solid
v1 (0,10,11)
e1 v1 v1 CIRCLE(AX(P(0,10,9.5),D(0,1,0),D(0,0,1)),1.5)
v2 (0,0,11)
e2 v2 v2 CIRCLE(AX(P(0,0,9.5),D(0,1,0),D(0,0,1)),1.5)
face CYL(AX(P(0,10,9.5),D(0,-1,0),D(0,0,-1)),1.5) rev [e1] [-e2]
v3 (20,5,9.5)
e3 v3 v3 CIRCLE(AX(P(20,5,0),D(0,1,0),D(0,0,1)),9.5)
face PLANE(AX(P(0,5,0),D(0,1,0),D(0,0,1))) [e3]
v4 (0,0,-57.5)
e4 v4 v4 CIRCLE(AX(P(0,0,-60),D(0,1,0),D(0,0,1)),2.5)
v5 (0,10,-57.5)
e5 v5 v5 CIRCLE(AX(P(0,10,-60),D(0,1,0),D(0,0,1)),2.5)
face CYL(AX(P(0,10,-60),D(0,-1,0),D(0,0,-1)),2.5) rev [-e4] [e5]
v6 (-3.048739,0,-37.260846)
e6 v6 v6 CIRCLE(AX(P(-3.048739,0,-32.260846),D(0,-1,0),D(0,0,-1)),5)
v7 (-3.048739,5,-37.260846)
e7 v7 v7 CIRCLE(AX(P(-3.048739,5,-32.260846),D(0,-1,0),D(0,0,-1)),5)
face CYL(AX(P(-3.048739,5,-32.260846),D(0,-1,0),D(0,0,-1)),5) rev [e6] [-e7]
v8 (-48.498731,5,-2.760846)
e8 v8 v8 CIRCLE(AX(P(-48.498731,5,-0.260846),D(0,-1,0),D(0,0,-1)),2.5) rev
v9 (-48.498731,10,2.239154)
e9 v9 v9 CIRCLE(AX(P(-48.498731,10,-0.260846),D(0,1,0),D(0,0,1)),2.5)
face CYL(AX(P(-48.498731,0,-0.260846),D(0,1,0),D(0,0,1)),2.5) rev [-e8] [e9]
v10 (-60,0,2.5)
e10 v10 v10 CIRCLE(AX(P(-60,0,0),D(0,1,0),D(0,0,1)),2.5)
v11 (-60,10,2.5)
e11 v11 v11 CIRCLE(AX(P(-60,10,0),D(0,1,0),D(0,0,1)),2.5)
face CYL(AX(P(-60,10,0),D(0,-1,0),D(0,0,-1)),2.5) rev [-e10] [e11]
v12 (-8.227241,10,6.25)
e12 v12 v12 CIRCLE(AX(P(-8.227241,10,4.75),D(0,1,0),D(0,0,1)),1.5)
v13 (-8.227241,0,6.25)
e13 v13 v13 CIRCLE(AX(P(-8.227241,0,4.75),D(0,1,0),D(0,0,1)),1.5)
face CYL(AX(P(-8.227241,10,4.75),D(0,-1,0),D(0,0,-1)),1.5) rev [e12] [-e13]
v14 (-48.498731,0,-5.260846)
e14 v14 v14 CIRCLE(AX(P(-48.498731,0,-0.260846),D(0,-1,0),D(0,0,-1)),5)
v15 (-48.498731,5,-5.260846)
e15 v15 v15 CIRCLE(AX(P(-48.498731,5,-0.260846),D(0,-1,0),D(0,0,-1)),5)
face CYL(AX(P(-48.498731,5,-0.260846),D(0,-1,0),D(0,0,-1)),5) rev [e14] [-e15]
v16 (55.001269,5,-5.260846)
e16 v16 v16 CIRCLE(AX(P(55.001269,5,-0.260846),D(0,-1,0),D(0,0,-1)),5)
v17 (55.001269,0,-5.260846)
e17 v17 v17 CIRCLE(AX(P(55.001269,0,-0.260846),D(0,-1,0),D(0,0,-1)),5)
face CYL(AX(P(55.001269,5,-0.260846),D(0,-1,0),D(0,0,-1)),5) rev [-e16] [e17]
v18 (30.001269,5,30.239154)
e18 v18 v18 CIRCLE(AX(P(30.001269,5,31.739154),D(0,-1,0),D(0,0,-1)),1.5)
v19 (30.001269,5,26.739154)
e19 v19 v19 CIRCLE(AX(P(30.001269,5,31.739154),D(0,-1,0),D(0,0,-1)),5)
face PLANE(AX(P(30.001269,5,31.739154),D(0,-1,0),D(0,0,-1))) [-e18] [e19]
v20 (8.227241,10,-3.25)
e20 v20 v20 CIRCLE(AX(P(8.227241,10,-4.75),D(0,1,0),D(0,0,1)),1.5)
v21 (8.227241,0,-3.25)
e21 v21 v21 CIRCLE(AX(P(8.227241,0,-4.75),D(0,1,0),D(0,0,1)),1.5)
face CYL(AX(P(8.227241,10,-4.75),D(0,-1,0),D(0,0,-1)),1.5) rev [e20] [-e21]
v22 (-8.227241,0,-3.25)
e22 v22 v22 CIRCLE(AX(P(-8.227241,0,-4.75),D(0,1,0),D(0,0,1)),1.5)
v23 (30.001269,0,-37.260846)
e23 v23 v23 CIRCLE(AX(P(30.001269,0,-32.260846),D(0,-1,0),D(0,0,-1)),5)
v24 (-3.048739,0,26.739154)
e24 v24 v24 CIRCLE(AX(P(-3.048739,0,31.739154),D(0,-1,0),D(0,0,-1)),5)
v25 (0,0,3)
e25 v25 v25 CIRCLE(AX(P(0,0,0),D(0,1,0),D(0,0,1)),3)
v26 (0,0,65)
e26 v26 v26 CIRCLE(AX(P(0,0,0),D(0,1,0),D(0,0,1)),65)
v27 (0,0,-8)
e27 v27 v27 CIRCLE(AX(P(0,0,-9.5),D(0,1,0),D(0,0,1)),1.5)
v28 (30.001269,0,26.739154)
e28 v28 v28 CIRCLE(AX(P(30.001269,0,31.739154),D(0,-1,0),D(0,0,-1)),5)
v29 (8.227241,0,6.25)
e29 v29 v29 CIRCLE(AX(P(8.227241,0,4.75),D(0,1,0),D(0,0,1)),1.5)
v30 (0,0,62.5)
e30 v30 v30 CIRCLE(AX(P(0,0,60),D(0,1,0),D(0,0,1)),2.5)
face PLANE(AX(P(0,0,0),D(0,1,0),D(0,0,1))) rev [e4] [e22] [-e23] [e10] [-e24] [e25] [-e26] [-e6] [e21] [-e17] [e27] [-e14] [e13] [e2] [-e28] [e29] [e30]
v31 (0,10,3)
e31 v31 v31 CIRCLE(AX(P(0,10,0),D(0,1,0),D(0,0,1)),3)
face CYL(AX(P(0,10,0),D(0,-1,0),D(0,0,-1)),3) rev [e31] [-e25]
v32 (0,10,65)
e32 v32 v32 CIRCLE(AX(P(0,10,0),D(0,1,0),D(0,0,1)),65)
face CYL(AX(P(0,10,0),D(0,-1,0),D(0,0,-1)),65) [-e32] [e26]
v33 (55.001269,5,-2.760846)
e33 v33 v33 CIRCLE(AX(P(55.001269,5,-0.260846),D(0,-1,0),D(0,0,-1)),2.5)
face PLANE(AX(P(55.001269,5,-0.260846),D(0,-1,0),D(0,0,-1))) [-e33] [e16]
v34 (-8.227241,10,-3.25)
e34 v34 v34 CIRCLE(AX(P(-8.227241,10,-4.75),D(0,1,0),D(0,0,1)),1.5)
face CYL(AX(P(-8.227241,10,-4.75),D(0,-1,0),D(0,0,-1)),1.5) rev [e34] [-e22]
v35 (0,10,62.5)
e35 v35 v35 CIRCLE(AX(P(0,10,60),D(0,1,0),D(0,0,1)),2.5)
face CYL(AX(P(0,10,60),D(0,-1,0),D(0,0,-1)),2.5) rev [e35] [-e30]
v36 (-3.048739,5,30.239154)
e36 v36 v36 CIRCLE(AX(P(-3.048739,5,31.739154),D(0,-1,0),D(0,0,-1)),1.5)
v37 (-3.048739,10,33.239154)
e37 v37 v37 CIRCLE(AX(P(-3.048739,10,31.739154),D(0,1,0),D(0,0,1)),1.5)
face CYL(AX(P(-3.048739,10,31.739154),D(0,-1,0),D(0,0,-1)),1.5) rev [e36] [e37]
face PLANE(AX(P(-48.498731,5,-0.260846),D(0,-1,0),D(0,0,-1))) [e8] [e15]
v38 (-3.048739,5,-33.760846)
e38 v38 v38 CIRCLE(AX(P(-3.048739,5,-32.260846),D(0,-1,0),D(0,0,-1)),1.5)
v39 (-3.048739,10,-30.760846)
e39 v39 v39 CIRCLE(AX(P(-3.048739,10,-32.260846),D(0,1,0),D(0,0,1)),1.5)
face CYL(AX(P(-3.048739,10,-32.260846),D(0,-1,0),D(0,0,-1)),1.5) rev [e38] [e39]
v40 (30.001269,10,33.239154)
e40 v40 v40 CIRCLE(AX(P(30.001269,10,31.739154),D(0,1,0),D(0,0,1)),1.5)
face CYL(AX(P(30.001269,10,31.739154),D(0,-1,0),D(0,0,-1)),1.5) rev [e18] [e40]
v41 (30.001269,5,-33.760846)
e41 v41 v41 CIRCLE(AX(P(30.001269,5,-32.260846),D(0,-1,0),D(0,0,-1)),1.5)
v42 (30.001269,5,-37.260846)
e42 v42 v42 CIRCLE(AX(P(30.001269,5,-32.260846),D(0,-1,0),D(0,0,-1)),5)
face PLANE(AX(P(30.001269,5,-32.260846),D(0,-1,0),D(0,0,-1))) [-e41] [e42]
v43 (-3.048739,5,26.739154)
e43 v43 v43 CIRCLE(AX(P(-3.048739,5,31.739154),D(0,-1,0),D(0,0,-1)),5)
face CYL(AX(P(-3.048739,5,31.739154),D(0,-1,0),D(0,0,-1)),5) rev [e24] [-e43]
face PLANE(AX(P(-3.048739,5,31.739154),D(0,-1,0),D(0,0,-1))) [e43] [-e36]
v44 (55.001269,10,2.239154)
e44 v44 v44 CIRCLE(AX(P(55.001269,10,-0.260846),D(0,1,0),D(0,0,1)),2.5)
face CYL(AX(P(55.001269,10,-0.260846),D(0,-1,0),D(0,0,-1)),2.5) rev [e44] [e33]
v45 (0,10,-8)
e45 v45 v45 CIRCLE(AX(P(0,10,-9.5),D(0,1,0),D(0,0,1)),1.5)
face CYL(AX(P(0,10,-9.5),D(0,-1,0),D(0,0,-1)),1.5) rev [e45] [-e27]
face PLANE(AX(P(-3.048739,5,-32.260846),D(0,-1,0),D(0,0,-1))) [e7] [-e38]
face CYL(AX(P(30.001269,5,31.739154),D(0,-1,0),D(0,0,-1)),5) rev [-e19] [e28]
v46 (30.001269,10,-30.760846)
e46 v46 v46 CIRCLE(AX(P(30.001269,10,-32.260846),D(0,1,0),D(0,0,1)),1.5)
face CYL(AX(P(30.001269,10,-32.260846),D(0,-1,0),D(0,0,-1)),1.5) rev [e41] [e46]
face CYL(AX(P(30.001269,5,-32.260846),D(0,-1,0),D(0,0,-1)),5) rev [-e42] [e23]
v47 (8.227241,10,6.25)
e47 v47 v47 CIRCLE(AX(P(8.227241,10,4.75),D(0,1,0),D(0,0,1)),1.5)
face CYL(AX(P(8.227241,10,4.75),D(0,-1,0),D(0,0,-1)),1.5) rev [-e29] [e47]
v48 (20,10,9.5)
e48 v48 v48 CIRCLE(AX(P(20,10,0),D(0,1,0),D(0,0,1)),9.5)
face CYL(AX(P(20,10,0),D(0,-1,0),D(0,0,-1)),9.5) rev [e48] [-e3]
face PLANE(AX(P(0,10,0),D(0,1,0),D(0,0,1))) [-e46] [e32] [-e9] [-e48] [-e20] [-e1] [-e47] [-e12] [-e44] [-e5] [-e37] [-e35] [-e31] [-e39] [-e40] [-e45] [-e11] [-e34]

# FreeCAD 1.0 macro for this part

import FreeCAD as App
import Part
import Sketcher
from FreeCAD import Vector
Q = App.Units.Quantity

doc = App.newDocument("Part")
body = doc.addObject("PartDesign::Body", "Body")

# Sketch on XZ plane
sketch1 = body.newObject("Sketcher::SketchObject", "Sketch")
sketch1.AttachmentSupport = (doc.getObject("XZ_Plane"), [""])
sketch1.MapMode = "FlatFace"
sketch1.addGeometry(Part.Circle(Vector(0, 0, 0), Vector(0, 0, 1), 65), False)
sketch1.addGeometry(Part.Circle(Vector(-3.048739, -32.260846, 0), Vector(0, 0, 1), 1.5), False)
sketch1.addGeometry(Part.Circle(Vector(-8.227241, -4.75, 0), Vector(0, 0, 1), 1.5), False)
sketch1.addGeometry(Part.Circle(Vector(-60, 0, 0), Vector(0, 0, 1), 2.5), False)
sketch1.addGeometry(Part.Circle(Vector(-8.227241, 4.75, 0), Vector(0, 0, 1), 1.5), False)
sketch1.addGeometry(Part.Circle(Vector(-3.048739, 31.739154, 0), Vector(0, 0, 1), 1.5), False)
sketch1.addGeometry(Part.Circle(Vector(0, -60, 0), Vector(0, 0, 1), 2.5), False)
sketch1.addGeometry(Part.Circle(Vector(0, -9.5, 0), Vector(0, 0, 1), 1.5), False)
sketch1.addGeometry(Part.Circle(Vector(8.227241, -4.75, 0), Vector(0, 0, 1), 1.5), False)
sketch1.addGeometry(Part.Circle(Vector(20, 0, 0), Vector(0, 0, 1), 9.5), False)
sketch1.addGeometry(Part.Circle(Vector(30.001269, -32.260846, 0), Vector(0, 0, 1), 1.5), False)
sketch1.addGeometry(Part.Circle(Vector(55.001269, -0.260846, 0), Vector(0, 0, 1), 2.5), False)
sketch1.addGeometry(Part.Circle(Vector(0, 0, 0), Vector(0, 0, 1), 3), False)
sketch1.addGeometry(Part.Circle(Vector(0, 9.5, 0), Vector(0, 0, 1), 1.5), False)
sketch1.addGeometry(Part.Circle(Vector(8.227241, 4.75, 0), Vector(0, 0, 1), 1.5), False)
sketch1.addGeometry(Part.Circle(Vector(0, 60, 0), Vector(0, 0, 1), 2.5), False)
sketch1.addGeometry(Part.Circle(Vector(30.001269, 31.739154, 0), Vector(0, 0, 1), 1.5), False)
sketch1.addConstraint(Sketcher.Constraint("Coincident", 0, 3, -1, 1))
sketch1.addConstraint(Sketcher.Constraint("Coincident", 12, 3, -1, 1))
sketch1.addConstraint(Sketcher.Constraint("Equal", 1, 2))
sketch1.addConstraint(Sketcher.Constraint("Equal", 2, 4))
sketch1.addConstraint(Sketcher.Constraint("Equal", 4, 5))
sketch1.addConstraint(Sketcher.Constraint("Equal", 3, 6))
sketch1.addConstraint(Sketcher.Constraint("Equal", 5, 7))
sketch1.addConstraint(Sketcher.Constraint("Equal", 7, 8))
sketch1.addConstraint(Sketcher.Constraint("Equal", 8, 10))
sketch1.addConstraint(Sketcher.Constraint("Equal", 6, 11))
sketch1.addConstraint(Sketcher.Constraint("Equal", 10, 13))
sketch1.addConstraint(Sketcher.Constraint("Equal", 13, 14))
sketch1.addConstraint(Sketcher.Constraint("Equal", 11, 15))
sketch1.addConstraint(Sketcher.Constraint("Equal", 14, 16))
sketch1.addConstraint(Sketcher.Constraint("Symmetric", 4, 3, 8, 3, -1, 1))
sketch1.addConstraint(Sketcher.Constraint("Symmetric", 7, 3, 13, 3, -1, 1))
sketch1.addConstraint(Sketcher.Constraint("Symmetric", 2, 3, 14, 3, -1, 1))
sketch1.addConstraint(Sketcher.Constraint("Symmetric", 6, 3, 15, 3, -1, 1))
sketch1.addConstraint(Sketcher.Constraint("Symmetric", 2, 3, 8, 3, -2))
sketch1.addConstraint(Sketcher.Constraint("PointOnObject", 3, 3, -1))
sketch1.addConstraint(Sketcher.Constraint("PointOnObject", 6, 3, -2))
sketch1.addConstraint(Sketcher.Constraint("PointOnObject", 7, 3, -2))
sketch1.addConstraint(Sketcher.Constraint("PointOnObject", 9, 3, -1))
sketch1.addConstraint(Sketcher.Constraint("Horizontal", 1, 3, 10, 3))
sketch1.addConstraint(Sketcher.Constraint("Horizontal", 5, 3, 16, 3))
sketch1.addConstraint(Sketcher.Constraint("Vertical", 1, 3, 5, 3))
sketch1.addConstraint(Sketcher.Constraint("Vertical", 10, 3, 16, 3))
sketch1.addConstraint(Sketcher.Constraint("Diameter", 0, Q("130 mm")))
sketch1.addConstraint(Sketcher.Constraint("Diameter", 1, Q("3 mm")))
sketch1.addConstraint(Sketcher.Constraint("Diameter", 3, Q("5 mm")))
sketch1.addConstraint(Sketcher.Constraint("Diameter", 9, Q("19 mm")))
sketch1.addConstraint(Sketcher.Constraint("Diameter", 12, Q("6 mm")))
sketch1.addConstraint(Sketcher.Constraint("DistanceX", 3, 3, -1, 1, Q("60 mm")))
sketch1.addConstraint(Sketcher.Constraint("DistanceY", 6, 3, -1, 1, Q("60 mm")))
sketch1.addConstraint(Sketcher.Constraint("DistanceX", -1, 1, 9, 3, Q("20 mm")))
sketch1.addConstraint(Sketcher.Constraint("DistanceY", 1, 3, 5, 3, Q("64 mm")))
sketch1.addConstraint(Sketcher.Constraint("DistanceX", 10, 3, 11, 3, Q("25 mm")))
sketch1.addConstraint(Sketcher.Constraint("DistanceY", 10, 3, 11, 3, Q("32 mm")))
sketch1.addConstraint(Sketcher.Constraint("DistanceY", 7, 3, -1, 1, Q("9.5 mm")))
sketch1.addConstraint(Sketcher.Constraint("DistanceY", 2, 3, 4, 3, Q("9.5 mm")))
sketch1.addConstraint(Sketcher.Constraint("DistanceX", 1, 3, -1, 1, Q("3.048739 mm")))
sketch1.addConstraint(Sketcher.Constraint("DistanceX", 2, 3, -1, 1, Q("8.227241 mm")))
sketch1.addConstraint(Sketcher.Constraint("DistanceX", -1, 1, 10, 3, Q("30.001269 mm")))
sketch1.addConstraint(Sketcher.Constraint("DistanceY", 1, 3, -1, 1, Q("32.260846 mm")))
pad1 = body.newObject("PartDesign::Pad", "Pad")
pad1.Profile = sketch1
pad1.Length = 10
pad1.Reversed = True

# Sketch on XZ plane
sketch2 = body.newObject("Sketcher::SketchObject", "Sketch001")
sketch2.AttachmentSupport = (doc.getObject("XZ_Plane"), [""])
sketch2.MapMode = "FlatFace"
sketch2.addGeometry(Part.Circle(Vector(20, 0, 0), Vector(0, 0, 1), 9.5), False)
sketch2.addConstraint(Sketcher.Constraint("PointOnObject", 0, 3, -1))
sketch2.addConstraint(Sketcher.Constraint("Diameter", 0, Q("19 mm")))
sketch2.addConstraint(Sketcher.Constraint("DistanceX", -1, 1, 0, 3, Q("20 mm")))
pad2 = body.newObject("PartDesign::Pad", "Pad001")
pad2.Profile = sketch2
pad2.Length = 5
pad2.Reversed = True

# Sketch on XZ plane
sketch3 = body.newObject("Sketcher::SketchObject", "Sketch002")
sketch3.AttachmentSupport = (doc.getObject("XZ_Plane"), [""])
sketch3.MapMode = "FlatFace"
sketch3.addGeometry(Part.Circle(Vector(30.001269, 31.739154, 0), Vector(0, 0, 1), 5), False)
sketch3.addGeometry(Part.Circle(Vector(-3.048739, 31.739154, 0), Vector(0, 0, 1), 5), False)
sketch3.addGeometry(Part.Circle(Vector(55.001269, -0.260846, 0), Vector(0, 0, 1), 5), False)
sketch3.addGeometry(Part.Circle(Vector(30.001269, -32.260846, 0), Vector(0, 0, 1), 5), False)
sketch3.addGeometry(Part.Circle(Vector(-3.048739, -32.260846, 0), Vector(0, 0, 1), 5), False)
sketch3.addConstraint(Sketcher.Constraint("Equal", 0, 1))
sketch3.addConstraint(Sketcher.Constraint("Equal", 1, 2))
sketch3.addConstraint(Sketcher.Constraint("Equal", 2, 3))
sketch3.addConstraint(Sketcher.Constraint("Equal", 3, 4))
sketch3.addConstraint(Sketcher.Constraint("Horizontal", 0, 3, 1, 3))
sketch3.addConstraint(Sketcher.Constraint("Horizontal", 3, 3, 4, 3))
sketch3.addConstraint(Sketcher.Constraint("Vertical", 0, 3, 3, 3))
sketch3.addConstraint(Sketcher.Constraint("Vertical", 1, 3, 4, 3))
sketch3.addConstraint(Sketcher.Constraint("Diameter", 0, Q("10 mm")))
sketch3.addConstraint(Sketcher.Constraint("DistanceX", 0, 3, 2, 3, Q("25 mm")))
sketch3.addConstraint(Sketcher.Constraint("DistanceY", 2, 3, 0, 3, Q("32 mm")))
sketch3.addConstraint(Sketcher.Constraint("DistanceY", 3, 3, 2, 3, Q("32 mm")))
sketch3.addConstraint(Sketcher.Constraint("DistanceX", -1, 1, 0, 3, Q("30.001269 mm")))
sketch3.addConstraint(Sketcher.Constraint("DistanceX", 1, 3, -1, 1, Q("3.048739 mm")))
sketch3.addConstraint(Sketcher.Constraint("DistanceY", -1, 1, 0, 3, Q("31.739154 mm")))
pocket1 = body.newObject("PartDesign::Pocket", "Pocket")
pocket1.Profile = sketch3
pocket1.Length = 5

# Sketch on XZ plane
sketch4 = body.newObject("Sketcher::SketchObject", "Sketch003")
sketch4.AttachmentSupport = (doc.getObject("XZ_Plane"), [""])
sketch4.MapMode = "FlatFace"
sketch4.AttachmentOffset = App.Placement(Vector(0, 0, -10), App.Rotation())
sketch4.addGeometry(Part.Circle(Vector(-48.498731, -0.260846, 0), Vector(0, 0, 1), 2.5), False)
sketch4.addConstraint(Sketcher.Constraint("Diameter", 0, Q("5 mm")))
sketch4.addConstraint(Sketcher.Constraint("DistanceX", 0, 3, -1, 1, Q("48.498731 mm")))
sketch4.addConstraint(Sketcher.Constraint("DistanceY", 0, 3, -1, 1, Q("0.260846 mm")))
pocket2 = body.newObject("PartDesign::Pocket", "Pocket001")
pocket2.Profile = sketch4
pocket2.Length = 10
pocket2.Reversed = True

# Sketch on XZ plane
sketch5 = body.newObject("Sketcher::SketchObject", "Sketch004")
sketch5.AttachmentSupport = (doc.getObject("XZ_Plane"), [""])
sketch5.MapMode = "FlatFace"
sketch5.addGeometry(Part.Circle(Vector(-48.498731, -0.260846, 0), Vector(0, 0, 1), 5), False)
sketch5.addConstraint(Sketcher.Constraint("Diameter", 0, Q("10 mm")))
sketch5.addConstraint(Sketcher.Constraint("DistanceX", 0, 3, -1, 1, Q("48.498731 mm")))
sketch5.addConstraint(Sketcher.Constraint("DistanceY", 0, 3, -1, 1, Q("0.260846 mm")))
pocket3 = body.newObject("PartDesign::Pocket", "Pocket002")
pocket3.Profile = sketch5
pocket3.Length = 5

doc.recompute()
